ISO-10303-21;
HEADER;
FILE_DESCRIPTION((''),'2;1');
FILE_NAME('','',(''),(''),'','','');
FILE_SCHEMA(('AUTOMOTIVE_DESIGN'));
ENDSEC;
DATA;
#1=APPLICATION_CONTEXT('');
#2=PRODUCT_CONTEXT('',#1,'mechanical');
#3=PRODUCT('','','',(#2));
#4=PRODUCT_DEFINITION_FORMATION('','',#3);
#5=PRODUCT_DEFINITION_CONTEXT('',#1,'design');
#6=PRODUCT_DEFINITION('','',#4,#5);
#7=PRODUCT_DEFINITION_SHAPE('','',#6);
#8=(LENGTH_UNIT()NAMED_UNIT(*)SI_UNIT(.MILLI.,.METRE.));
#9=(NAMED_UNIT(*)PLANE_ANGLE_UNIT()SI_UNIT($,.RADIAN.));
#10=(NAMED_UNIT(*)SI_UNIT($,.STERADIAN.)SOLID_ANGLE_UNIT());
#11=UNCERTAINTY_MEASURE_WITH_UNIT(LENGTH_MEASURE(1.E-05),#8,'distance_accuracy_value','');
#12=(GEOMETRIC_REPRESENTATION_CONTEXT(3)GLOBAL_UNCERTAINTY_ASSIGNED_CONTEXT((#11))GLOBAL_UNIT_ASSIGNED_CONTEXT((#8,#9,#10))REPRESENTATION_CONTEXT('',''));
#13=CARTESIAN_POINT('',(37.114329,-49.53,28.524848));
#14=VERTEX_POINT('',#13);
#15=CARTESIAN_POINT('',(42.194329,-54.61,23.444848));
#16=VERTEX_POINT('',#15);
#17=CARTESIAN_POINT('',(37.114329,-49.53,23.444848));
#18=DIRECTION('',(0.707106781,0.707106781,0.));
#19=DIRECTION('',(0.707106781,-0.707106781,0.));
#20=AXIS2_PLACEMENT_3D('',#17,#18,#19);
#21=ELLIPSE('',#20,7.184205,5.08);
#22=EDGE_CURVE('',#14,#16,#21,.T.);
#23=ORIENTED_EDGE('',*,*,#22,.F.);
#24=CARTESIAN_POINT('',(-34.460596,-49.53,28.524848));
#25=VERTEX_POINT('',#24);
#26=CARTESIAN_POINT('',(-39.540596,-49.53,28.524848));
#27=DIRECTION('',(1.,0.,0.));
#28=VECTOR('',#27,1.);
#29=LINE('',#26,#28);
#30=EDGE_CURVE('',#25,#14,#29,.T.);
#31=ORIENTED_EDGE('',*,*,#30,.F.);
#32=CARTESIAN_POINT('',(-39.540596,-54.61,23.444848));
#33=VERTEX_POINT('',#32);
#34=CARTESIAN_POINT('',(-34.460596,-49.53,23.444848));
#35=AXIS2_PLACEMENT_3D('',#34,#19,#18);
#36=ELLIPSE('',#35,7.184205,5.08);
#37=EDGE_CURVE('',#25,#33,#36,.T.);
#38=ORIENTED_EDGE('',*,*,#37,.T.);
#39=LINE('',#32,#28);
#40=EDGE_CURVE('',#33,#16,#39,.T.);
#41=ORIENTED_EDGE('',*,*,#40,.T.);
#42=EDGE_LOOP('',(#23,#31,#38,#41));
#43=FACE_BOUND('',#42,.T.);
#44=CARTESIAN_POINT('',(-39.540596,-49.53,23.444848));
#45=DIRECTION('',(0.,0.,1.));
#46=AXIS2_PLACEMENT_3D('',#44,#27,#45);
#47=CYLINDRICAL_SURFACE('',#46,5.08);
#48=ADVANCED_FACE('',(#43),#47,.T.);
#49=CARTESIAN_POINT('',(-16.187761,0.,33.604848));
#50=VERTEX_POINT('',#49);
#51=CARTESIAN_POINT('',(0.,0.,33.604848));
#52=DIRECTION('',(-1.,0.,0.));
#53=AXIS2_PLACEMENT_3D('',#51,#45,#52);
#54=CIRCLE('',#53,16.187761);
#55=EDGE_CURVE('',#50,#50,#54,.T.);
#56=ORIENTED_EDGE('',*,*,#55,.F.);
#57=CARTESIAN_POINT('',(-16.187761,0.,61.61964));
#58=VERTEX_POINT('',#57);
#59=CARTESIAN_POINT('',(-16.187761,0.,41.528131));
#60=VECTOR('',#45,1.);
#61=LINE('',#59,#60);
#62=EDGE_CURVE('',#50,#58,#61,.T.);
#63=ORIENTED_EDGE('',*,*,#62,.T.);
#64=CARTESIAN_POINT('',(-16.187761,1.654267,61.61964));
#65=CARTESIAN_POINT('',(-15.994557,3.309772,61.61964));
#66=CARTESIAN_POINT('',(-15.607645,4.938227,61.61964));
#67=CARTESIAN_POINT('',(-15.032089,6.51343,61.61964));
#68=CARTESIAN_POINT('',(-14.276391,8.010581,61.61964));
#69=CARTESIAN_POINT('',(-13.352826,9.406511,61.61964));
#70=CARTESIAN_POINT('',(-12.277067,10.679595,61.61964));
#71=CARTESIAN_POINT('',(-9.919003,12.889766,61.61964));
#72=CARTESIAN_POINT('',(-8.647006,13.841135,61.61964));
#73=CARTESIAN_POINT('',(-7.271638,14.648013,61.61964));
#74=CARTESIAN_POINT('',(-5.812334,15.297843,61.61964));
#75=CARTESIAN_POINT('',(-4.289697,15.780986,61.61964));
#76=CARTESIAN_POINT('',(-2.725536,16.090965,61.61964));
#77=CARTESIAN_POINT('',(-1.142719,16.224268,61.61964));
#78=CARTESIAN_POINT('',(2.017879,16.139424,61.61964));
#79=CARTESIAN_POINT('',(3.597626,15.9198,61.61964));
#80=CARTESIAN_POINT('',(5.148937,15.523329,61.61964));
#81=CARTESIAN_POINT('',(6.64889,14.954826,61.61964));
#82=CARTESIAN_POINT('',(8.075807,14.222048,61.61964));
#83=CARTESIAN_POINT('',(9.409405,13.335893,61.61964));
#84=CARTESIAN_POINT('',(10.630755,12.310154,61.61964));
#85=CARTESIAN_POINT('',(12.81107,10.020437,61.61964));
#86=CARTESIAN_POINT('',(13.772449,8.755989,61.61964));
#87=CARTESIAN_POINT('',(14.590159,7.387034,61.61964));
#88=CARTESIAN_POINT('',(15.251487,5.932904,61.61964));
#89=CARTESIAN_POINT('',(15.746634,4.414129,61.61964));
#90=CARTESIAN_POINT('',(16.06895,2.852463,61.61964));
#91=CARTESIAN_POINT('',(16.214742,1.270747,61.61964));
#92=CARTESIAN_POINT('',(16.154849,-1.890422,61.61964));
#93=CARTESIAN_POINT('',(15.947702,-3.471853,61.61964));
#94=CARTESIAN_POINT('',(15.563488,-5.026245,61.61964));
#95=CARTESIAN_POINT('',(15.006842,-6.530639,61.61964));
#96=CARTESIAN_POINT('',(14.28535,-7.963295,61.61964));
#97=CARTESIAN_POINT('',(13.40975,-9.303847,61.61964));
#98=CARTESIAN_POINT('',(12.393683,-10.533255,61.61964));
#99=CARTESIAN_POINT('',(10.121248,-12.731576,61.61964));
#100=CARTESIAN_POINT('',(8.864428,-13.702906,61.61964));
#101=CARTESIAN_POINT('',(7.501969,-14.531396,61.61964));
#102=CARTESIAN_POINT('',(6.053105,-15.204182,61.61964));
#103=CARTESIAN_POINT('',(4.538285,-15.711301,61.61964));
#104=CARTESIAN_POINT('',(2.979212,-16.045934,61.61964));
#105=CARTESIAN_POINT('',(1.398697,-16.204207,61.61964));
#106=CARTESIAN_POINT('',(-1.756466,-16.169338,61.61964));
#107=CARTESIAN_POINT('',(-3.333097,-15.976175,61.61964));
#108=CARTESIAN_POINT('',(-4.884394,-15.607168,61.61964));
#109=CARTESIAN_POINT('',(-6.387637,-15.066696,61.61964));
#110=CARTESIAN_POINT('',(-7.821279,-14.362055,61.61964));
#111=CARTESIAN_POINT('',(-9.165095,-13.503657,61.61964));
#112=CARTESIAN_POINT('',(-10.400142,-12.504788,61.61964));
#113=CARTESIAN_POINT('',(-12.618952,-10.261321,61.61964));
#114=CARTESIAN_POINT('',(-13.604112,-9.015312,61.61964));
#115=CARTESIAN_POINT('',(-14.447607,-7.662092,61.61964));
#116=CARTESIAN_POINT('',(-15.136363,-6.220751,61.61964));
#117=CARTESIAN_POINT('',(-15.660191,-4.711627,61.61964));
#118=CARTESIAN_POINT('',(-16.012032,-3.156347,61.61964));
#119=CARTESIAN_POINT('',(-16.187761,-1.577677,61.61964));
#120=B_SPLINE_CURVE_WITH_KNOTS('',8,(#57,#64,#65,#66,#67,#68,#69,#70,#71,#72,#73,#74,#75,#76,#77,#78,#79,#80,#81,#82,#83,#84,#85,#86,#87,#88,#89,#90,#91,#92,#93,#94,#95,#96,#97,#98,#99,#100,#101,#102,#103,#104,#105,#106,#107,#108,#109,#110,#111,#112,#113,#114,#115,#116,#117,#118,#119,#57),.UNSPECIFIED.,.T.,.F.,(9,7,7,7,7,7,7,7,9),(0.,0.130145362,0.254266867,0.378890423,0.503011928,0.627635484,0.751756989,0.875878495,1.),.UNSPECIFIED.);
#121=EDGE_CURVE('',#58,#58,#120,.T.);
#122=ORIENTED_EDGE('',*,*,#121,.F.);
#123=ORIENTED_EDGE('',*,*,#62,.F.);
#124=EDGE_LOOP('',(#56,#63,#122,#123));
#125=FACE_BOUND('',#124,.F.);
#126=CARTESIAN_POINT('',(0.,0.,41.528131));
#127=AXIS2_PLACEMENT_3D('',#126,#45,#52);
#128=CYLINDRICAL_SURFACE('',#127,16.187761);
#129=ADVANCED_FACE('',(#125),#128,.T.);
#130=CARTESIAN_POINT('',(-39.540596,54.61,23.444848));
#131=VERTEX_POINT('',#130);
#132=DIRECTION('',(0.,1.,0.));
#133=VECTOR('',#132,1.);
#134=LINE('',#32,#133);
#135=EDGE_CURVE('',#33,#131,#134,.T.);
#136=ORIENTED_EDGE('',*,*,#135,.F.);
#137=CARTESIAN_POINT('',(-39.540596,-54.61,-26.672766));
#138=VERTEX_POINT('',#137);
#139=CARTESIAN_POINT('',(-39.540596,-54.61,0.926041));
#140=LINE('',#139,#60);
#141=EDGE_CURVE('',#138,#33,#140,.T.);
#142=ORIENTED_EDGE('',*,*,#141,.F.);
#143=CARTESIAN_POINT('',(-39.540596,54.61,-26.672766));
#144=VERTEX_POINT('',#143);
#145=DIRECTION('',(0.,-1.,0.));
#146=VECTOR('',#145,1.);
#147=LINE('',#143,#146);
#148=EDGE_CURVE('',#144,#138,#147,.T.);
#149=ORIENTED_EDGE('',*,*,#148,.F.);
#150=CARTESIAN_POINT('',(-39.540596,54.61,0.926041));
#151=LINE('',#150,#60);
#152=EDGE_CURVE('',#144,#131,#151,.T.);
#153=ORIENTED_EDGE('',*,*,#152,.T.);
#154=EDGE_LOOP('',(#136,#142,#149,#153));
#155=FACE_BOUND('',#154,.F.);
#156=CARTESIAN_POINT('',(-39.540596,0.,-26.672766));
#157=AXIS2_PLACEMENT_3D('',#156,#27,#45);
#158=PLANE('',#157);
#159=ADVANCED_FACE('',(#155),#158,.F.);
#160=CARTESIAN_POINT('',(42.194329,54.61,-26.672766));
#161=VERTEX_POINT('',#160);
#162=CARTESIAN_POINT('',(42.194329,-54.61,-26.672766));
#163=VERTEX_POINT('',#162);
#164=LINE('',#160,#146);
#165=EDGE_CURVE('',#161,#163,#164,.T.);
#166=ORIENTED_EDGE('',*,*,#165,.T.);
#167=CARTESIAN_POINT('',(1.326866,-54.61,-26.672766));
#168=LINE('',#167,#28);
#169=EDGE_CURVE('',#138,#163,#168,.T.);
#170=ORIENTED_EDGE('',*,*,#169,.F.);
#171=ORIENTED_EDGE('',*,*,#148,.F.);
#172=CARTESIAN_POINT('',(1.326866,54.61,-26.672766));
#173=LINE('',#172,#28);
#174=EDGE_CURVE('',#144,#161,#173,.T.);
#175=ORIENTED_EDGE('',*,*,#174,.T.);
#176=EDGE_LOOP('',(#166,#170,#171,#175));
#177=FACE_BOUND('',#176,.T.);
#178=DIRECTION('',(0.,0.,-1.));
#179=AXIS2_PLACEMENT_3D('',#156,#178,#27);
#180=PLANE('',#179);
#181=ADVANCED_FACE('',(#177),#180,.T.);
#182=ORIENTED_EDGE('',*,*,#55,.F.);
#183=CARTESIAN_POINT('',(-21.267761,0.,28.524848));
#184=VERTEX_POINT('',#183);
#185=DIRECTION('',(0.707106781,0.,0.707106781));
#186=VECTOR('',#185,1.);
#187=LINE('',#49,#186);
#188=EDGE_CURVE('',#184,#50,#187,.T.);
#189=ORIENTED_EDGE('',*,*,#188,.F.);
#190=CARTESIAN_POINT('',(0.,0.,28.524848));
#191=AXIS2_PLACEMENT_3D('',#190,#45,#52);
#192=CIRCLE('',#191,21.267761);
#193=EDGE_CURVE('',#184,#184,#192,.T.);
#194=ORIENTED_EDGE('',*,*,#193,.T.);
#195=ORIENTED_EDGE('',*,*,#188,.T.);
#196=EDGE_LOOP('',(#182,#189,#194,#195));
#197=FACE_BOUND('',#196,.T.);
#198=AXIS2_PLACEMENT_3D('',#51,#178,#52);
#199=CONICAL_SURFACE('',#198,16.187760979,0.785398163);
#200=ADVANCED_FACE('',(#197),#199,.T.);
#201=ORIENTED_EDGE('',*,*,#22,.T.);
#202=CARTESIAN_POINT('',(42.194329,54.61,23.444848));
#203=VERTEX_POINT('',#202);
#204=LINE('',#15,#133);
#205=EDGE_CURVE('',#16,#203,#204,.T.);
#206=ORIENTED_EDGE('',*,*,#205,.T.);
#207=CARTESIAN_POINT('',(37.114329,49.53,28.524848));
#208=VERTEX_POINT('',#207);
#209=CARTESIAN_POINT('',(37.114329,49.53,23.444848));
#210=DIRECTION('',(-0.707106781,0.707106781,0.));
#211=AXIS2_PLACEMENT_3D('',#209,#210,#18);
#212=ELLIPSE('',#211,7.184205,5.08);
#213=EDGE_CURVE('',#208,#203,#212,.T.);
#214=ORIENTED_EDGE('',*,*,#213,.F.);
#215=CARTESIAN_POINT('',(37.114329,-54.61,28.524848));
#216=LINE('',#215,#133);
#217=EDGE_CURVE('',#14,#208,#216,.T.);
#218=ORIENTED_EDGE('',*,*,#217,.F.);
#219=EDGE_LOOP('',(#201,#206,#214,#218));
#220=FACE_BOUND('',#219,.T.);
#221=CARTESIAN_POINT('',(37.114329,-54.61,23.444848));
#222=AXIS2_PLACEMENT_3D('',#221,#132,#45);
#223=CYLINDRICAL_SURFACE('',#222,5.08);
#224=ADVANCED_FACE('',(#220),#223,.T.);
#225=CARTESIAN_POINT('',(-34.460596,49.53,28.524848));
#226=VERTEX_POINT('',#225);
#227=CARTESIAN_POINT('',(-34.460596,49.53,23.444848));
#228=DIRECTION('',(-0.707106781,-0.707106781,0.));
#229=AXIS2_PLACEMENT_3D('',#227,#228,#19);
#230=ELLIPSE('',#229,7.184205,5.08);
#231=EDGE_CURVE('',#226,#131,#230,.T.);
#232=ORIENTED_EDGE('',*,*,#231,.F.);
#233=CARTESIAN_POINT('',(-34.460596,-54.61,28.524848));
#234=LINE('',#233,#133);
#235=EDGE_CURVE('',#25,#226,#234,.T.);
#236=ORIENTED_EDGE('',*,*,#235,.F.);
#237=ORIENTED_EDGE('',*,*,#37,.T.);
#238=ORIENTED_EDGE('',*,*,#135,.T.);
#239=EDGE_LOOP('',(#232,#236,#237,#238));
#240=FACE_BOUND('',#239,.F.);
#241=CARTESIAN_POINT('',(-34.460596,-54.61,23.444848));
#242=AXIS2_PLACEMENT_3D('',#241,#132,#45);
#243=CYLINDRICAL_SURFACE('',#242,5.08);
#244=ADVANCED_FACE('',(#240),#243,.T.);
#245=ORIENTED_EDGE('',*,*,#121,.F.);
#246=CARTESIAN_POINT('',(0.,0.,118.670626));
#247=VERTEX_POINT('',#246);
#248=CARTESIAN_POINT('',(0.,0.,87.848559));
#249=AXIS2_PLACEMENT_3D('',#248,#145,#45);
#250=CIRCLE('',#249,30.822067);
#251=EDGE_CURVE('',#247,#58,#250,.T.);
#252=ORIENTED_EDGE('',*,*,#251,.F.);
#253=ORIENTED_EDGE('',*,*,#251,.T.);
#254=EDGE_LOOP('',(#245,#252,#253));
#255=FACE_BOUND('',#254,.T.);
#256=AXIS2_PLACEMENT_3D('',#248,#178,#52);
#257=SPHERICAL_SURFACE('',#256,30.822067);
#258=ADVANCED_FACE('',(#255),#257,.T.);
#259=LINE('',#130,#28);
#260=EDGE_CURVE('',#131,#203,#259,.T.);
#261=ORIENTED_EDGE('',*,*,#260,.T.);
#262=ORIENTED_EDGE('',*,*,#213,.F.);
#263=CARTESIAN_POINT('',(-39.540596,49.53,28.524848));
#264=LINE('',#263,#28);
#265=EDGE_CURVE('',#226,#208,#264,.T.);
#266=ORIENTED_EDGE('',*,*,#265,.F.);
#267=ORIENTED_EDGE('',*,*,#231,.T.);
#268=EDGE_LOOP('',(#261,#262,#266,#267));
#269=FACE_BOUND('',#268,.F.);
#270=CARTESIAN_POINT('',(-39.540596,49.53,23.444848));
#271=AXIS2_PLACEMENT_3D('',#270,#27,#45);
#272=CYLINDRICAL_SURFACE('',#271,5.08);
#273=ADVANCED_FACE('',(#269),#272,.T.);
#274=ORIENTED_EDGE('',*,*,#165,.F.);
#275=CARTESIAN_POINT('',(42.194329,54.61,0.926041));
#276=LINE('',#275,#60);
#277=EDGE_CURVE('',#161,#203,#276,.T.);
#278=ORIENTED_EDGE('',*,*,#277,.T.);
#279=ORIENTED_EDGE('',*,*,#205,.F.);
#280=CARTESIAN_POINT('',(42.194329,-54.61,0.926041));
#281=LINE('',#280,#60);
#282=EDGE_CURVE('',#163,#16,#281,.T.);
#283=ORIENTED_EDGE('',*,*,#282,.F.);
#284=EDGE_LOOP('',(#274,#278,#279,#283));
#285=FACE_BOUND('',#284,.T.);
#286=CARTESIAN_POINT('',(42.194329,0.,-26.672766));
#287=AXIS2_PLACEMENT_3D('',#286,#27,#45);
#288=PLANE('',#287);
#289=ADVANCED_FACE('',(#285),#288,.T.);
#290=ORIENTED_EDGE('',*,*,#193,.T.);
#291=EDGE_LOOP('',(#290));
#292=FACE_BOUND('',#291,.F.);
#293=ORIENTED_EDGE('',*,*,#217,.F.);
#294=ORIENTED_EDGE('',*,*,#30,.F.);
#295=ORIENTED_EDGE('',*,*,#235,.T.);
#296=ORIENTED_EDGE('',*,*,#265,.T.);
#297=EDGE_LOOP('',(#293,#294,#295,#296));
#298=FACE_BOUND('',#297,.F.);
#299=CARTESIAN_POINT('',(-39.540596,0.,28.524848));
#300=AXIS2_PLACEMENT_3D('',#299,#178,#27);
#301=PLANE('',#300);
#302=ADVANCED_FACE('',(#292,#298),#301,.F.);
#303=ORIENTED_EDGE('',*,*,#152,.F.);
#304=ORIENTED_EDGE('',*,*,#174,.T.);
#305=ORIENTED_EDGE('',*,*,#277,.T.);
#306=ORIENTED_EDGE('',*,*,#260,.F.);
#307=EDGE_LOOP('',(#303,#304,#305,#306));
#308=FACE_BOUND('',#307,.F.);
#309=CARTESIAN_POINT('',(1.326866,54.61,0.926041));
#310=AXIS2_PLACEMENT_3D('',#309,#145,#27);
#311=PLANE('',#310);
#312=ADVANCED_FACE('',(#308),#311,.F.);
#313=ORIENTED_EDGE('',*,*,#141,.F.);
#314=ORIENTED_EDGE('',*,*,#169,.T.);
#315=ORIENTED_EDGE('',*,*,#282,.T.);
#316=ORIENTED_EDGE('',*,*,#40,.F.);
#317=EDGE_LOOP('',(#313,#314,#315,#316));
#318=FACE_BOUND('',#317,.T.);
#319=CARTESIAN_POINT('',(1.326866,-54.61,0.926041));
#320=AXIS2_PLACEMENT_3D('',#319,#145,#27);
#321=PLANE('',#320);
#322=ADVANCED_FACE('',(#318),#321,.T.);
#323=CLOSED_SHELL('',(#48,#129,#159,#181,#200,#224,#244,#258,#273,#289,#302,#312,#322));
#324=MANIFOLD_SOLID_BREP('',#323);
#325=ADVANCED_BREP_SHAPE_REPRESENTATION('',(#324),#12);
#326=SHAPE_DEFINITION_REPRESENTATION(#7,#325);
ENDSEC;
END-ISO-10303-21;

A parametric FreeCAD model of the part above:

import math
import FreeCAD as App
import Part
import Sketcher
from FreeCAD import Vector
Q = App.Units.Quantity


def edges_at(feature, points):
    """Names of the edges that pass closest to the given points."""
    edges = feature.Shape.Edges
    near = lambda p: min(range(len(edges)), key=lambda i: edges[i].distToShape(Part.Vertex(*p))[0])
    return sorted({f"Edge{near(p) + 1}" for p in points})

doc = App.newDocument("Part")
params = doc.addObject("Spreadsheet::Sheet", "Params")
for row, (alias, value) in enumerate([
    ("pad1_length", "4.3 in"),
    ("revolution_angle", "360 deg"),
    ("revolution2_angle", "360 deg"),
    ("fillet_radius", "0.2 in"),
    ("chamfer_size", "0.2 in"),
], start=1):
    params.set(f"A{row}", alias)
    params.set(f"B{row}", "=" + value)
    params.setAlias(f"B{row}", alias)

body = doc.addObject("PartDesign::Body", "Body")

# Sketch on XZ plane
sketch1 = body.newObject("Sketcher::SketchObject", "Sketch")
sketch1.AttachmentSupport = (doc.getObject("XZ_Plane"), [""])
sketch1.MapMode = "FlatFace"
sketch1.addGeometry([
    Part.LineSegment(Vector(-40, 29, 0), Vector(-40, -27, 0)),
    Part.LineSegment(Vector(-40, -27, 0), Vector(42, -27, 0)),
    Part.LineSegment(Vector(42, -27, 0), Vector(42, 29, 0)),
    Part.LineSegment(Vector(42, 29, 0), Vector(-40, 29, 0)),
], False)
sketch1.addConstraint([
    Sketcher.Constraint("Coincident", 0, 2, 1, 1),
    Sketcher.Constraint("Coincident", 1, 2, 2, 1),
    Sketcher.Constraint("Coincident", 2, 2, 3, 1),
    Sketcher.Constraint("Coincident", 3, 2, 0, 1),
    Sketcher.Constraint("Vertical", 0),
    Sketcher.Constraint("Horizontal", 1),
    Sketcher.Constraint("Vertical", 2),
    Sketcher.Constraint("Horizontal", 3),
    Sketcher.Constraint("DistanceX", 1, 1, 1, 2, Q("81.734926 mm")),
    Sketcher.Constraint("DistanceY", 0, 2, 0, 1, Q("55.197613 mm")),
    Sketcher.Constraint("DistanceX", -1, 1, 1, 2, Q("42.194329 mm")),
    Sketcher.Constraint("DistanceY", 0, 2, -1, 1, Q("26.672766 mm")),
])
pad1 = body.newObject("PartDesign::Pad", "Pad")
pad1.Profile = sketch1
pad1.setExpression("Length", "Params.pad1_length")
pad1.Midplane = True

# Sketch on XZ plane
sketch2 = body.newObject("Sketcher::SketchObject", "Sketch001")
sketch2.AttachmentSupport = (doc.getObject("XZ_Plane"), [""])
sketch2.MapMode = "FlatFace"
sketch2.addGeometry([
    Part.LineSegment(Vector(-16, 70, 0), Vector(-16, 13, 0)),
    Part.LineSegment(Vector(-16, 13, 0), Vector(0, 13, 0)),
    Part.LineSegment(Vector(0, 13, 0), Vector(0, 70, 0)),
    Part.LineSegment(Vector(0, 70, 0), Vector(-16, 70, 0)),
], False)
sketch2.addConstraint([
    Sketcher.Constraint("Coincident", 0, 2, 1, 1),
    Sketcher.Constraint("Coincident", 1, 2, 2, 1),
    Sketcher.Constraint("Coincident", 2, 2, 3, 1),
    Sketcher.Constraint("Coincident", 3, 2, 0, 1),
    Sketcher.Constraint("Vertical", 0),
    Sketcher.Constraint("Horizontal", 1),
    Sketcher.Constraint("Vertical", 2),
    Sketcher.Constraint("Horizontal", 3),
    Sketcher.Constraint("PointOnObject", 1, 2, -2),
    Sketcher.Constraint("DistanceX", 1, 1, 1, 2, Q("16.187761 mm")),
    Sketcher.Constraint("DistanceY", 0, 2, 0, 1, Q("56.259104 mm")),
    Sketcher.Constraint("DistanceY", -1, 1, 0, 2, Q("13.398579 mm")),
])
revolution = body.newObject("PartDesign::Revolution", "Revolution")
revolution.Profile = sketch2
revolution.ReferenceAxis = (sketch2, ["V_Axis"])
revolution.setExpression("Angle", "Params.revolution_angle")

# Sketch on XZ plane
sketch3 = body.newObject("Sketcher::SketchObject", "Sketch002")
sketch3.AttachmentSupport = (doc.getObject("XZ_Plane"), [""])
sketch3.MapMode = "FlatFace"
sketch3.addGeometry([
    Part.LineSegment(Vector(0, 57, 0), Vector(0, 119, 0)),
    Part.ArcOfCircle(Part.Circle(Vector(0, 88, 0), Vector(0, 0, 1), 31), math.radians(90), math.radians(270)),
], False)
sketch3.addConstraint([
    Sketcher.Constraint("Coincident", 0, 1, 1, 2),
    Sketcher.Constraint("Coincident", 1, 1, 0, 2),
    Sketcher.Constraint("Vertical", 0),
    Sketcher.Constraint("PointOnObject", 1, 3, -2),
    Sketcher.Constraint("PointOnObject", 0, 1, -2),
    Sketcher.Constraint("Radius", 1, Q("30.822067 mm")),
    Sketcher.Constraint("DistanceY", -1, 1, 1, 3, Q("87.848559 mm")),
])
revolution2 = body.newObject("PartDesign::Revolution", "Revolution001")
revolution2.Profile = sketch3
revolution2.ReferenceAxis = (sketch3, ["V_Axis"])
revolution2.setExpression("Angle", "Params.revolution2_angle")
doc.recompute()

fillet = body.newObject("PartDesign::Fillet", "Fillet")
fillet.Base = (revolution2, edges_at(revolution2, [
    (1.327, -54.61, 28.525),
    (42.194, 0, 28.525),
    (1.327, 54.61, 28.525),
    (-39.541, 0, 28.525),
]))
fillet.setExpression("Radius", "Params.fillet_radius")
doc.recompute()

chamfer = body.newObject("PartDesign::Chamfer", "Chamfer")
chamfer.Base = (fillet, edges_at(fillet, [(16.188, 0, 28.525)]))
chamfer.setExpression("Size", "Params.chamfer_size")

doc.recompute()
